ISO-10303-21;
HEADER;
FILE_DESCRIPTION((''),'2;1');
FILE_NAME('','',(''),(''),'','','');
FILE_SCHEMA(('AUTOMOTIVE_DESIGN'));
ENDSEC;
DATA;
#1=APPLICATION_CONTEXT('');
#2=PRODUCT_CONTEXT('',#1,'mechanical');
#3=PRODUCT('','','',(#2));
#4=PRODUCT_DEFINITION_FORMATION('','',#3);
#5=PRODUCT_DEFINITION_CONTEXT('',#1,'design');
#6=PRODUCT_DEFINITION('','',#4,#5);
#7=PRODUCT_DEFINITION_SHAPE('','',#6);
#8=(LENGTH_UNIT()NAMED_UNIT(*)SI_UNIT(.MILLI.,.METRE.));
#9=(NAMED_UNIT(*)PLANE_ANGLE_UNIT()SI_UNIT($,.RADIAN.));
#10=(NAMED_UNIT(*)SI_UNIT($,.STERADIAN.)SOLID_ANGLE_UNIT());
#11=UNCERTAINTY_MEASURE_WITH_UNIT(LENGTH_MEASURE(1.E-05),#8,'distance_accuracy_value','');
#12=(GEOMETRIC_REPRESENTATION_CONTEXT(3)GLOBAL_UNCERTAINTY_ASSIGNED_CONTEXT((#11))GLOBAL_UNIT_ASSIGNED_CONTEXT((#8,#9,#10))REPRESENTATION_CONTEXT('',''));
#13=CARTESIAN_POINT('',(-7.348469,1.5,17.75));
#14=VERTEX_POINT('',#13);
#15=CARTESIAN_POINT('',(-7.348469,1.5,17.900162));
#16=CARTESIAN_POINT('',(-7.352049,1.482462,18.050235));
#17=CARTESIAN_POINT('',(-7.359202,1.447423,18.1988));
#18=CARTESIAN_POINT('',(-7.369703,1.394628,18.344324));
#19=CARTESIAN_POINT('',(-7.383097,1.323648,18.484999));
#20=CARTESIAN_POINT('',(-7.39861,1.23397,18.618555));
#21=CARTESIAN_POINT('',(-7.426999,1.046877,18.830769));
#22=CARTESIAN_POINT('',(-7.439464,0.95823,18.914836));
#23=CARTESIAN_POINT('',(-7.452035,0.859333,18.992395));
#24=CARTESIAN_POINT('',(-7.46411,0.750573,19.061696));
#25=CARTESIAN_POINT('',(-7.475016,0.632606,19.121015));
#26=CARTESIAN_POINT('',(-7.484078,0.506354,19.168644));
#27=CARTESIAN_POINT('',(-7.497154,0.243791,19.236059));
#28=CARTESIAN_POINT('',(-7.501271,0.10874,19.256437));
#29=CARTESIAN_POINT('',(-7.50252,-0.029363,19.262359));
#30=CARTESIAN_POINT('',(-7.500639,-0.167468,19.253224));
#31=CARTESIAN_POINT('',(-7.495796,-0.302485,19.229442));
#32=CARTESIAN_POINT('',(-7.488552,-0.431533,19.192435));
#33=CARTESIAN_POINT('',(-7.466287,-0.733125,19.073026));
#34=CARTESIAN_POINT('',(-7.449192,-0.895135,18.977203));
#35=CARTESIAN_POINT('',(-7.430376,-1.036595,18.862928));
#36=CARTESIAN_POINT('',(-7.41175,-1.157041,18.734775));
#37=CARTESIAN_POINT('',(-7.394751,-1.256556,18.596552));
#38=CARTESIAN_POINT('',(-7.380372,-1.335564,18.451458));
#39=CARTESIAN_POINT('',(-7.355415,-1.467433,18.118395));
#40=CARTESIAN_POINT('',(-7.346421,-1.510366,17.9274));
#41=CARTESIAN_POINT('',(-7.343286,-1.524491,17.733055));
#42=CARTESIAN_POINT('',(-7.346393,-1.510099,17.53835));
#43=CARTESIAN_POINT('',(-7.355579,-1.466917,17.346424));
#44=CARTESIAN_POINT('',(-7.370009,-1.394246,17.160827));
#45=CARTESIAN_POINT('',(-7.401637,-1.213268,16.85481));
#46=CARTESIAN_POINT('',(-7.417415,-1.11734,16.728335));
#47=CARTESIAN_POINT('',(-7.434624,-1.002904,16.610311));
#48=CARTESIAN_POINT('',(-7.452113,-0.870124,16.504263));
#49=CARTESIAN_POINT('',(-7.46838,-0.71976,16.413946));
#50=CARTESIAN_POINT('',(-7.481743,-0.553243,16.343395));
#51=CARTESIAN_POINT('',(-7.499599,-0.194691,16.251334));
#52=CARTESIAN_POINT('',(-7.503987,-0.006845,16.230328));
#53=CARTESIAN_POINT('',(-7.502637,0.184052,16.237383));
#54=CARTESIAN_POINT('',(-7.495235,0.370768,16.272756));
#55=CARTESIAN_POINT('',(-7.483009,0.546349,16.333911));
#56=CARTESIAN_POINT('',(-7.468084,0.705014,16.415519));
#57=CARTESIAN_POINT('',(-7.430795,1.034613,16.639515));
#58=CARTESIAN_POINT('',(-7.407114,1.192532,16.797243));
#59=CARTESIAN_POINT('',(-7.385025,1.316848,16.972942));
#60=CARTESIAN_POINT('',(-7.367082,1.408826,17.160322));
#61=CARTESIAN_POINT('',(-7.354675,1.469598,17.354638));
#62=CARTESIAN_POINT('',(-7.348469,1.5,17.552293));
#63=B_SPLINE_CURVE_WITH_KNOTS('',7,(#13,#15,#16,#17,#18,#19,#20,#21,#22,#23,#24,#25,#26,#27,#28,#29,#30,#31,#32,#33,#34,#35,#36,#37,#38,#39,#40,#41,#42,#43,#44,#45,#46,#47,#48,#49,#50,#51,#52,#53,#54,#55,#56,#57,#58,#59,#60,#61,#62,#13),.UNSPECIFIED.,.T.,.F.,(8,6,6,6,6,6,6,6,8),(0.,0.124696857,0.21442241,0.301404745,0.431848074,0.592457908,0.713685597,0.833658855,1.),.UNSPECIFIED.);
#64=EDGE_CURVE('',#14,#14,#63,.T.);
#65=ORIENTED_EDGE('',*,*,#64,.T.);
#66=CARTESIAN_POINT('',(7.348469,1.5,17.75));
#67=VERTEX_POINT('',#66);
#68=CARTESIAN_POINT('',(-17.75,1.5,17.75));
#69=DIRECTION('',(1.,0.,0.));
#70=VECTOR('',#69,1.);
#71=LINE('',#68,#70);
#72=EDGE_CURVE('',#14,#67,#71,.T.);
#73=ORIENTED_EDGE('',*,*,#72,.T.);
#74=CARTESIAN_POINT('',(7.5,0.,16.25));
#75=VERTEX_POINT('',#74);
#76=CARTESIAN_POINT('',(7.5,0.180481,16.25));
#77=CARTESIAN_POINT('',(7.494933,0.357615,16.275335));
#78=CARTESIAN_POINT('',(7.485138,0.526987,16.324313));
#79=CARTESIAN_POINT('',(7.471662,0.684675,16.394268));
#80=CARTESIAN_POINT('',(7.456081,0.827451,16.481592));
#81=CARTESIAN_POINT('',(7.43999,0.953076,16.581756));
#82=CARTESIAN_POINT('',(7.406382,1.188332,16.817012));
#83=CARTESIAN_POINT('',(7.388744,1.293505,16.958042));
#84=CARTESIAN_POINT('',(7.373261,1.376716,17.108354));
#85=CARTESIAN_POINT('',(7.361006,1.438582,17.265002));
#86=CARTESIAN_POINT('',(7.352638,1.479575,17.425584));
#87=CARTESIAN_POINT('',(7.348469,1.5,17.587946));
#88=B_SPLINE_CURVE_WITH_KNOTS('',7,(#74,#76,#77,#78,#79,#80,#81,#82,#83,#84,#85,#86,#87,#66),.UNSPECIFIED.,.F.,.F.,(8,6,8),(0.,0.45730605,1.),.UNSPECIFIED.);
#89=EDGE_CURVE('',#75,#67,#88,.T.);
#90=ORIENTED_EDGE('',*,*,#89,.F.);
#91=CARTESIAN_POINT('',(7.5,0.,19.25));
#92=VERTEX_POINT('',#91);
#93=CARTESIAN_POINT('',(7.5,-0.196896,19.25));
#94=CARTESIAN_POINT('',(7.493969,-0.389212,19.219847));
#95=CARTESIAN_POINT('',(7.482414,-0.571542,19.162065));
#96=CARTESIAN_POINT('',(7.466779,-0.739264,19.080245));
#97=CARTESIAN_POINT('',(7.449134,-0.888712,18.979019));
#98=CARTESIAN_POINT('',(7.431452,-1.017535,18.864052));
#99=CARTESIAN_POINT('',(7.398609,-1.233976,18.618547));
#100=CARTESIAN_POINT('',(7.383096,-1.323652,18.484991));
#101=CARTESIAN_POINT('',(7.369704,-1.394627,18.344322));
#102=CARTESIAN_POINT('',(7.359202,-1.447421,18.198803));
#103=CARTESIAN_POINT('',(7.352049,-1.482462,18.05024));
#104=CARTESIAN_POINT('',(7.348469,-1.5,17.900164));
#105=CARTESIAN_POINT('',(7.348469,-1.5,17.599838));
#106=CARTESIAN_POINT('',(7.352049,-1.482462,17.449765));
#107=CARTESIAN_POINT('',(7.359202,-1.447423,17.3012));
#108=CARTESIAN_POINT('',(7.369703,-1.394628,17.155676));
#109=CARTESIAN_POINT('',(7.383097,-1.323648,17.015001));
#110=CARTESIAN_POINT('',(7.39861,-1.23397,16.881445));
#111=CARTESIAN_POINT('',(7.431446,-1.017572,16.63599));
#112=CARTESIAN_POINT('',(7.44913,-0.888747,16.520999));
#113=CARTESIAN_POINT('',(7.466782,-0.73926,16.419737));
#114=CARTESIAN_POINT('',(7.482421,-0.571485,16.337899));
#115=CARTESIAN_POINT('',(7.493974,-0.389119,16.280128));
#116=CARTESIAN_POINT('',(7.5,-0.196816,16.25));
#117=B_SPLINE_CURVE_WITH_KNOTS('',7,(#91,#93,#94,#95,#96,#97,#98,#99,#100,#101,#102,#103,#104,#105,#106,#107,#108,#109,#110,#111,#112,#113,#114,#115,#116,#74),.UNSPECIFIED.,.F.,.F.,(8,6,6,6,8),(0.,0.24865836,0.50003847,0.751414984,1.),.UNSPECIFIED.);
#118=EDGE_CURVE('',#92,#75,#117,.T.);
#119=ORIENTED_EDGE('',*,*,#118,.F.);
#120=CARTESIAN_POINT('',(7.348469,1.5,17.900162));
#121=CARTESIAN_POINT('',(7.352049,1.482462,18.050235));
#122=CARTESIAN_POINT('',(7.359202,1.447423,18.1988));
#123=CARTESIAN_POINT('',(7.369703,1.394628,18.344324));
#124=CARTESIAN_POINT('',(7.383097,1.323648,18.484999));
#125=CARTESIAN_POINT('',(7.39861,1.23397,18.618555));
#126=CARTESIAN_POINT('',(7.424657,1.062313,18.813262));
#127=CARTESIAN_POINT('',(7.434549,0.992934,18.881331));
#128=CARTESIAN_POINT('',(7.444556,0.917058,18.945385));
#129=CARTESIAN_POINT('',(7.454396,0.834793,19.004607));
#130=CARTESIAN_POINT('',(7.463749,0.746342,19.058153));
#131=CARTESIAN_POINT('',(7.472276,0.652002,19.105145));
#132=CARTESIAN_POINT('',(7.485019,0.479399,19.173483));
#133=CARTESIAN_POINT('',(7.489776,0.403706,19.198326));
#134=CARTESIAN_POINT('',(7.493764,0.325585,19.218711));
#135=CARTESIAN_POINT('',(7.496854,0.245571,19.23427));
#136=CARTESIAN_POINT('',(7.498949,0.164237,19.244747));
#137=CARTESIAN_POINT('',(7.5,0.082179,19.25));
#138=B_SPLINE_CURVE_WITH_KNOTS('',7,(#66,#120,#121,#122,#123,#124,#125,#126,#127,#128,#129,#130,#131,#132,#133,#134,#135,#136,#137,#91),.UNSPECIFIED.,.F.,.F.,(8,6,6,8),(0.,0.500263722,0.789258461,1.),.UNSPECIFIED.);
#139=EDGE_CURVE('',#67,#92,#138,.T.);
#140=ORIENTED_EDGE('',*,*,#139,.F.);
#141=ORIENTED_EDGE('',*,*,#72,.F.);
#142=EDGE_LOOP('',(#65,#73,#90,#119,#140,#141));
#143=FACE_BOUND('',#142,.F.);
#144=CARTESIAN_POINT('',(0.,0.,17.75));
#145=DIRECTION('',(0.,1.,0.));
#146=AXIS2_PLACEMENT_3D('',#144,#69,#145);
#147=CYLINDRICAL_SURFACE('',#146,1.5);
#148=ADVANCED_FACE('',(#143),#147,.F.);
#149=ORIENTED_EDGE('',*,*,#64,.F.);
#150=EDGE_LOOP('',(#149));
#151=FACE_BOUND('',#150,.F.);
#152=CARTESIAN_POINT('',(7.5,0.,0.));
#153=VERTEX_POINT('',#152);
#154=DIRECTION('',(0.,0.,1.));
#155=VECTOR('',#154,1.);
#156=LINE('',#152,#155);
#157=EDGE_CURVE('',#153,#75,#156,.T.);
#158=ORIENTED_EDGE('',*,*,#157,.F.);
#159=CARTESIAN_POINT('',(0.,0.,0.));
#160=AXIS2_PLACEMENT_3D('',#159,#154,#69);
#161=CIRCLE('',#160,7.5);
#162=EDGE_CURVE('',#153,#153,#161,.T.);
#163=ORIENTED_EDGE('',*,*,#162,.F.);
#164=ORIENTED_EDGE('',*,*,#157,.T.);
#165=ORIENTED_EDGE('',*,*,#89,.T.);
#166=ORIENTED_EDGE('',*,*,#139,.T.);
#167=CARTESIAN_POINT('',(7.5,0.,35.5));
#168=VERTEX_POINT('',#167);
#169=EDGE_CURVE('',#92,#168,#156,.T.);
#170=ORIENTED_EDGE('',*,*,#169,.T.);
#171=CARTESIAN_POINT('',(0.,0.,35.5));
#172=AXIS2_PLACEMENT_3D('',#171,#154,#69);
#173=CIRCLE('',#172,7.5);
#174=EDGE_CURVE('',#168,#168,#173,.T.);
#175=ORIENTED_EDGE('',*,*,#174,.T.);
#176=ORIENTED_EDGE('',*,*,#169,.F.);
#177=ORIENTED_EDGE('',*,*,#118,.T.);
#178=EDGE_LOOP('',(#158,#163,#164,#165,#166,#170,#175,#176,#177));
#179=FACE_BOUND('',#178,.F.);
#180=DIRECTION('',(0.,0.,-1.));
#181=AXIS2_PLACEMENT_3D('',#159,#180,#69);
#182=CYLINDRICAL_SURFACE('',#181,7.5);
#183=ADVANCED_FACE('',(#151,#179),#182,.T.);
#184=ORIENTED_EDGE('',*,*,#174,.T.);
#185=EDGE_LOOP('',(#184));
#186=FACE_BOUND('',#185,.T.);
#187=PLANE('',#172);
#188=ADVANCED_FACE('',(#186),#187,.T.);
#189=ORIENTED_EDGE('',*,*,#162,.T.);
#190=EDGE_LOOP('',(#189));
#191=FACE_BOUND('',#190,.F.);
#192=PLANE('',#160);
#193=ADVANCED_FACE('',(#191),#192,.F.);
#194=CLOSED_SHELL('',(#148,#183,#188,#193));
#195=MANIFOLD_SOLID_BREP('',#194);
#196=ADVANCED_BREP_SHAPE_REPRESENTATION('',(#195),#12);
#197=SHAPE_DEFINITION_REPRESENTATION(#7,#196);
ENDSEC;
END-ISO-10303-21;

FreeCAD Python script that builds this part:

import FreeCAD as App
import Part
import Sketcher
from FreeCAD import Vector
Q = App.Units.Quantity

doc = App.newDocument("Part")
body = doc.addObject("PartDesign::Body", "Body")

# Sketch on XY plane
sketch1 = body.newObject("Sketcher::SketchObject", "Sketch")
sketch1.AttachmentSupport = (doc.getObject("XY_Plane"), [""])
sketch1.MapMode = "FlatFace"
sketch1.addGeometry(Part.Circle(Vector(0, 0, 0), Vector(0, 0, 1), 8), False)
sketch1.addConstraint(Sketcher.Constraint("Coincident", 0, 3, -1, 1))
sketch1.addConstraint(Sketcher.Constraint("Diameter", 0, Q("15 mm")))
pad1 = body.newObject("PartDesign::Pad", "Pad")
pad1.Profile = sketch1
pad1.Length = 35.5

# Sketch on YZ plane
sketch2 = body.newObject("Sketcher::SketchObject", "Sketch001")
sketch2.AttachmentSupport = (doc.getObject("YZ_Plane"), [""])
sketch2.MapMode = "FlatFace"
sketch2.addGeometry(Part.Circle(Vector(0, 17.8, 0), Vector(0, 0, 1), 1.5), False)
sketch2.addConstraint(Sketcher.Constraint("PointOnObject", 0, 3, -2))
sketch2.addConstraint(Sketcher.Constraint("Diameter", 0, Q("3 mm")))
sketch2.addConstraint(Sketcher.Constraint("DistanceY", -1, 1, 0, 3, Q("17.75 mm")))
pocket1 = body.newObject("PartDesign::Pocket", "Pocket")
pocket1.Profile = sketch2
pocket1.Length = 35.5
pocket1.Midplane = True

doc.recompute()
